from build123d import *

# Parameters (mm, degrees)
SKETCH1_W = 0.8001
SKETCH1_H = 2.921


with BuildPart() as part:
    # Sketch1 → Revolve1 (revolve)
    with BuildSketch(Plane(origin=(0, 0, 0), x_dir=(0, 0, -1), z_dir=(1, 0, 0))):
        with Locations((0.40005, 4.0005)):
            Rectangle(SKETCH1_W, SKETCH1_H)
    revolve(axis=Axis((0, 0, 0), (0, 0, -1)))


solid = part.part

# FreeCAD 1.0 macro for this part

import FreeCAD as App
import Part
import Sketcher
from FreeCAD import Vector
Q = App.Units.Quantity


def add_polygon(sketch, points):
    """Adds a closed chain of lines whose ends are joined by coincident constraints."""
    first, n = sketch.GeometryCount, len(points)
    for a, b in zip(points, points[1:] + points[:1]):
        sketch.addGeometry(Part.LineSegment(App.Vector(*a, 0), App.Vector(*b, 0)), False)
    for i in range(n):
        sketch.addConstraint(Sketcher.Constraint("Coincident", first + i, 2, first + (i + 1) % n, 1))

doc = App.newDocument("Part")
params = doc.addObject("Spreadsheet::Sheet", "Params")
for row, (alias, value) in enumerate([
    ("sketch1_width", "0.115 in"),
    ("revolution_angle", "360 deg"),
], start=1):
    params.set(f"A{row}", alias)
    params.set(f"B{row}", "=" + value)
    params.setAlias(f"B{row}", alias)

body = doc.addObject("PartDesign::Body", "Body")

# Sketch on YZ plane
sketch1 = doc.addObject("Sketcher::SketchObject", "Sketch")
body.addObject(sketch1)
sketch1.AttachmentSupport = (doc.YZ_Plane, [""])
sketch1.MapMode = "FlatFace"
add_polygon(sketch1, [(5.5, 0), (2.5, 0), (2.5, -0.8), (5.5, -0.8)])  # lines 0-3
sketch1.addConstraint([
    Sketcher.Constraint("Horizontal", 0),
    Sketcher.Constraint("Vertical", 1),
    Sketcher.Constraint("Horizontal", 2),
    Sketcher.Constraint("Vertical", 3),
    Sketcher.Constraint("PointOnObject", 0, 2, -1),
    Sketcher.Constraint("DistanceX", -1, 1, 0, 2, Q("0.1 in")),
    Sketcher.Constraint("DistanceX", 0, 2, 0, 1, Q("0.115 in")),
    Sketcher.Constraint("DistanceY", 1, 2, 1, 1, Q("0.0315 in")),
])
sketch1.setExpression("Constraints[10]", "Params.sketch1_width")
revolution = doc.addObject("PartDesign::Revolution", "Revolution")
body.addObject(revolution)
revolution.Profile = sketch1
revolution.ReferenceAxis = (sketch1, ["V_Axis"])
revolution.setExpression("Angle", "Params.revolution_angle")

doc.recompute()
